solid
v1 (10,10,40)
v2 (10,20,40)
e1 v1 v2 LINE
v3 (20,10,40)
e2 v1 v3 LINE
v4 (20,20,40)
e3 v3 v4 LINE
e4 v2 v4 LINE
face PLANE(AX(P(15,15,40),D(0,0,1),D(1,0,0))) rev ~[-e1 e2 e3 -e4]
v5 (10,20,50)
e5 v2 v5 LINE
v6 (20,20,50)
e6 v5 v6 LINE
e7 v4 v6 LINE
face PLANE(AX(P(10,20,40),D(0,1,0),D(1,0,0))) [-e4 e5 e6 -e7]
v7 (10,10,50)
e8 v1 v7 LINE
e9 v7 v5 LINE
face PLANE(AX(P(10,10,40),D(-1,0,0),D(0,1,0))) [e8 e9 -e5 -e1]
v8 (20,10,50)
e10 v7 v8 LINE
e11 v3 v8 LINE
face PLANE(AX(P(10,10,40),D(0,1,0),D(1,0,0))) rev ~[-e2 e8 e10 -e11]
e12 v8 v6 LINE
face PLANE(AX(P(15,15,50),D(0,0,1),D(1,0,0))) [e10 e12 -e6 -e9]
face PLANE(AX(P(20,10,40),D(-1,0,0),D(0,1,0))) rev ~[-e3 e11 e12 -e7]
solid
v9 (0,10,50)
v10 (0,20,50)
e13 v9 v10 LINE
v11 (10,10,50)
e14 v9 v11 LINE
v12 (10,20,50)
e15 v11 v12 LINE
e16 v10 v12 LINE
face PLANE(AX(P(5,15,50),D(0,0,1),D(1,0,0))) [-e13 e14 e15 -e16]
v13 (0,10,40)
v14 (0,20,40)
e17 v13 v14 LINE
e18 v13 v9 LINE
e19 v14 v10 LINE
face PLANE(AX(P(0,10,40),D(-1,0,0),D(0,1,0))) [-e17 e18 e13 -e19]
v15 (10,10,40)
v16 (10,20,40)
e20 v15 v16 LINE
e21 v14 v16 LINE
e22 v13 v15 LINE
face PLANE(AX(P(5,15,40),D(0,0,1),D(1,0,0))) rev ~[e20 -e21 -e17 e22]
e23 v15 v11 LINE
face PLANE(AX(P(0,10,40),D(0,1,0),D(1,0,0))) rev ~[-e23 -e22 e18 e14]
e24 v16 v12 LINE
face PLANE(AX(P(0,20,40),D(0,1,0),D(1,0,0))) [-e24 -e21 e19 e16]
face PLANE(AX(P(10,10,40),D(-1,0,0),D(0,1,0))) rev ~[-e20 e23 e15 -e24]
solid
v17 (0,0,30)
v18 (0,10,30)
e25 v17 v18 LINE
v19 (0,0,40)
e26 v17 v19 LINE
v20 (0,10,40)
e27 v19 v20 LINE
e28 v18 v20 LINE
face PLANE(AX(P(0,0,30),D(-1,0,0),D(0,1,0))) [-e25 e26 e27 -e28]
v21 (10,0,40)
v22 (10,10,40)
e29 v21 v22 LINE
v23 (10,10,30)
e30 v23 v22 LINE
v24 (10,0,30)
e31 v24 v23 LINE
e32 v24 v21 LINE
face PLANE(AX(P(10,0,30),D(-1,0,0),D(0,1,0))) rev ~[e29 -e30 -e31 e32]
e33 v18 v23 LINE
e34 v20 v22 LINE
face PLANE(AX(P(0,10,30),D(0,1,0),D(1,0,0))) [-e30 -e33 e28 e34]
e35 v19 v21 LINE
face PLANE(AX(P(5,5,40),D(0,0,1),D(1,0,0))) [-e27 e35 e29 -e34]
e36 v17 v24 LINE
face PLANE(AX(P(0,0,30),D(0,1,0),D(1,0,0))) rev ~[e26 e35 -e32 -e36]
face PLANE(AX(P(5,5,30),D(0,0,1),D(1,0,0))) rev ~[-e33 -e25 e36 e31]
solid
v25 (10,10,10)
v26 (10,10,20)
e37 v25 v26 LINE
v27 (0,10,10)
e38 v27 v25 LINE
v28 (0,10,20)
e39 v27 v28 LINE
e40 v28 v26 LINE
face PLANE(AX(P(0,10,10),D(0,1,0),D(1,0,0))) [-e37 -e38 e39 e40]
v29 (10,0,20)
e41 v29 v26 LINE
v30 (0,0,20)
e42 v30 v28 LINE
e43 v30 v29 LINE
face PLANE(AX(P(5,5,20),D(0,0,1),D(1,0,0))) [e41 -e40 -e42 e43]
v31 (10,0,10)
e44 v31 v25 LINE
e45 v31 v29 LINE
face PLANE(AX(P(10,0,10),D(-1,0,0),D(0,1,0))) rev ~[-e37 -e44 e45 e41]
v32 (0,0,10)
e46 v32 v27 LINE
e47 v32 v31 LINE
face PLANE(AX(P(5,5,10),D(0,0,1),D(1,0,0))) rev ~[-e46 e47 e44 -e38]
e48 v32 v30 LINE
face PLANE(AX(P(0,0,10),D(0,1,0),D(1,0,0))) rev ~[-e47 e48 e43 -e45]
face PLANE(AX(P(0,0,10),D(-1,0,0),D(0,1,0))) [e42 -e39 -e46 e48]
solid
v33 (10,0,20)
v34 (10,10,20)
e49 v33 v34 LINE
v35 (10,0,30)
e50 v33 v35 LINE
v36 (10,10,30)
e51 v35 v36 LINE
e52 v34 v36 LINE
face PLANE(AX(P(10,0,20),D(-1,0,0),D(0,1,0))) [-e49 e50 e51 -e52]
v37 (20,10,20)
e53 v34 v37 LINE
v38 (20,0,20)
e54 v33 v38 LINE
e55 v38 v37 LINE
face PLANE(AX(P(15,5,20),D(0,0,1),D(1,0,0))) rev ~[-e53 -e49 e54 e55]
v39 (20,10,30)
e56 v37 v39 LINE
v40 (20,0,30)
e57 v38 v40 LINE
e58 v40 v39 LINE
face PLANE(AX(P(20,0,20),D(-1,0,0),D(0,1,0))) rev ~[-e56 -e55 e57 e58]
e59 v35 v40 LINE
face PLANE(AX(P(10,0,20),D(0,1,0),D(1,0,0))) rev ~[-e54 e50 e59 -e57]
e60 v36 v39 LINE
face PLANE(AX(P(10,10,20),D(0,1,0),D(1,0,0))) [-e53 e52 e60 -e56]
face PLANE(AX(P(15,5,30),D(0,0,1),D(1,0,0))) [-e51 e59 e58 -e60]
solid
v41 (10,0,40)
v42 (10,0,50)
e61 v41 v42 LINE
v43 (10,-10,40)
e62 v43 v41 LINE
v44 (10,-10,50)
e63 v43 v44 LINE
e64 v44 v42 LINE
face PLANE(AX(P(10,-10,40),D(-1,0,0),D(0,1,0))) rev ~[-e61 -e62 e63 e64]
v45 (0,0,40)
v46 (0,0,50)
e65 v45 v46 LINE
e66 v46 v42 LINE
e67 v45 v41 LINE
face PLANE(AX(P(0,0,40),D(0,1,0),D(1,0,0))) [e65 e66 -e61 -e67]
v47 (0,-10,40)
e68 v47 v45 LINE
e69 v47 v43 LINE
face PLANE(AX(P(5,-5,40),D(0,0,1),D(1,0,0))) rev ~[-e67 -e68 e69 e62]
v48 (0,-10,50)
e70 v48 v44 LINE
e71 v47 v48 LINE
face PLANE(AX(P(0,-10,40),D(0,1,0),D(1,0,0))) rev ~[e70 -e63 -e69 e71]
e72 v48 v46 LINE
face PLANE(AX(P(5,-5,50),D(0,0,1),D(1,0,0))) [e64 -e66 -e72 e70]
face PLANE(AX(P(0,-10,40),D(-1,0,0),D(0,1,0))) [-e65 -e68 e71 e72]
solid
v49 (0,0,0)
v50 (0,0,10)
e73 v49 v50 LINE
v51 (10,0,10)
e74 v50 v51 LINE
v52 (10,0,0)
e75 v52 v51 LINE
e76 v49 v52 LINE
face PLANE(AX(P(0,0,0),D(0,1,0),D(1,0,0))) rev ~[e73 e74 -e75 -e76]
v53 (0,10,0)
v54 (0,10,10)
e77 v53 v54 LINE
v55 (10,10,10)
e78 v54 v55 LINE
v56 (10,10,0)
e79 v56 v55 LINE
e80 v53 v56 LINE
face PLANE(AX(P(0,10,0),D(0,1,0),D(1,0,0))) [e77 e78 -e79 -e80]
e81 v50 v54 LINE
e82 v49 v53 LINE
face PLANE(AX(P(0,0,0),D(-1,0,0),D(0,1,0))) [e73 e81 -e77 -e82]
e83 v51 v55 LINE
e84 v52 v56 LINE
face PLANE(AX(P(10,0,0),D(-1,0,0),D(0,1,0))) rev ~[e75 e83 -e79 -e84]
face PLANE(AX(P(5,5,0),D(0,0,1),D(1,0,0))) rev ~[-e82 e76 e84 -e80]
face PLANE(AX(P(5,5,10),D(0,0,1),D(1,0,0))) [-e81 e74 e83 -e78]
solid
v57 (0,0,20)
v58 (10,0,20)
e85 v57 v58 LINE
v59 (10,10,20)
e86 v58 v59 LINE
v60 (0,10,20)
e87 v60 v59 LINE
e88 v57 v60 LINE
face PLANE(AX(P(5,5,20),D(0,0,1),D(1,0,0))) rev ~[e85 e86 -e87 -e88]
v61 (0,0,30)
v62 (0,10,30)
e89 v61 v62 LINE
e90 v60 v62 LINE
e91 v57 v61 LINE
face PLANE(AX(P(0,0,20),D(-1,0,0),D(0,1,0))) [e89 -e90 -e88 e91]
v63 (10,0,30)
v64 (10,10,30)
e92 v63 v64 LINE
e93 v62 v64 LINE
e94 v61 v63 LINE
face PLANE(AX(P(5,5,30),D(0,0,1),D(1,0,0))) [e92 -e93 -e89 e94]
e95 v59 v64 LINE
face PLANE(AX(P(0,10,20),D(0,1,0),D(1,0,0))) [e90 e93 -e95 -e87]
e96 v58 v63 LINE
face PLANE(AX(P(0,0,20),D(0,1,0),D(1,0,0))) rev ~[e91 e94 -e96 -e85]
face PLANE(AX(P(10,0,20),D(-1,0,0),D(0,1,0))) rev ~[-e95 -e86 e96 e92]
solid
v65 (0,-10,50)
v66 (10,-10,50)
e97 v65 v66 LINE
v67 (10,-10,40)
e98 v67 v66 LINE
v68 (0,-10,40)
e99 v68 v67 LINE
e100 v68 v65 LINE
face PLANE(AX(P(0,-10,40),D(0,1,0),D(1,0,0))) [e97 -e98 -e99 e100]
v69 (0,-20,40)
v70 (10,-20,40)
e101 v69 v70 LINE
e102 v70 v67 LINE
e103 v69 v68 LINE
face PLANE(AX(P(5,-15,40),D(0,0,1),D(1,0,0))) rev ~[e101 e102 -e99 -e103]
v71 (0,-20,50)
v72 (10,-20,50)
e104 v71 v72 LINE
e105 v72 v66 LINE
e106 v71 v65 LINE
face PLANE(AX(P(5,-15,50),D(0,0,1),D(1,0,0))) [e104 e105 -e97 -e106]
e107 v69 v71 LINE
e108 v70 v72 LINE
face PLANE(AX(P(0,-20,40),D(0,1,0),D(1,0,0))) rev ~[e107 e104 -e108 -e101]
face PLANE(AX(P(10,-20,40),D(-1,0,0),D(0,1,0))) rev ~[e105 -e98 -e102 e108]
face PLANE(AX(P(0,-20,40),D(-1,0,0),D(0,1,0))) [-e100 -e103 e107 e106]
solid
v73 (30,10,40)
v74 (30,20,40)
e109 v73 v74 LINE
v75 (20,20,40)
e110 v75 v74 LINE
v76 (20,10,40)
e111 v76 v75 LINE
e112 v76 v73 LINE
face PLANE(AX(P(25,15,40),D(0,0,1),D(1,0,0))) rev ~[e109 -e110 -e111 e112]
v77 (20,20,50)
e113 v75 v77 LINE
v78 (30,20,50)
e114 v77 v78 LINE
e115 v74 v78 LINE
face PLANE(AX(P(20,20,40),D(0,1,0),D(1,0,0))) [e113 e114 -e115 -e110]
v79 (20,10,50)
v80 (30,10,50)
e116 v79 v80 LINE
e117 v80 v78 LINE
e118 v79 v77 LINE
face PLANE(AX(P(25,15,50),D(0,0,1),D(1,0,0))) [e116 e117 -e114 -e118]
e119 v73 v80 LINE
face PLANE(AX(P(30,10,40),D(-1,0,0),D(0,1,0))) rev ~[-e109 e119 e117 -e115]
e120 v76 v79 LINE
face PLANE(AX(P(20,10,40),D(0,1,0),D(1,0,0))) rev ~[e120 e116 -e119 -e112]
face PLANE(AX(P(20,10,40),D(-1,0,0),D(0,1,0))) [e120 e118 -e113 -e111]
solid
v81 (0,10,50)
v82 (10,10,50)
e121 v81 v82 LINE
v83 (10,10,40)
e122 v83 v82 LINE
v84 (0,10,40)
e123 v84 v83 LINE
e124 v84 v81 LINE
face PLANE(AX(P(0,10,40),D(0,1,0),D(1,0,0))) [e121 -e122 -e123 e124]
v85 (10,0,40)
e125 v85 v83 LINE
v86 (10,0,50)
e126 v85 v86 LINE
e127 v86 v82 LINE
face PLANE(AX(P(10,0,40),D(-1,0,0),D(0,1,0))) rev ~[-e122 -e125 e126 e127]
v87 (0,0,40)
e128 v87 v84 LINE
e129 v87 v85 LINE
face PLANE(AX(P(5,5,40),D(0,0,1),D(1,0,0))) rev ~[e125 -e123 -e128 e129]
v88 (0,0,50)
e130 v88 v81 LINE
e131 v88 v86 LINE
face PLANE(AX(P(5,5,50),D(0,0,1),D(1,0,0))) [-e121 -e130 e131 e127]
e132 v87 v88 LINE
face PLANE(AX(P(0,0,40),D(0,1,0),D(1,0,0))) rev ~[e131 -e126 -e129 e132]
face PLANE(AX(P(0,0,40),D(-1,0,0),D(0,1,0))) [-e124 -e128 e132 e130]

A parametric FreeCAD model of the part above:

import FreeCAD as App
import Part
import Sketcher

V = App.Vector
Q = App.Units.Quantity

doc = App.newDocument("Part")
body = doc.addObject("PartDesign::Body", "Body")

# Sketch on XY plane
sketch1 = body.newObject("Sketcher::SketchObject", "Sketch")
sketch1.AttachmentSupport = (doc.getObject("XY_Plane"), [""])
sketch1.MapMode = "FlatFace"
sketch1.addGeometry([
    Part.LineSegment(V(0, 10, 0), V(0, 0, 0)),
    Part.LineSegment(V(0, 0, 0), V(10, 0, 0)),
    Part.LineSegment(V(10, 0, 0), V(10, 10, 0)),
    Part.LineSegment(V(10, 10, 0), V(0, 10, 0)),
], False)
sketch1.addConstraint([
    Sketcher.Constraint("Coincident", 0, 2, 1, 1),
    Sketcher.Constraint("Coincident", 1, 2, 2, 1),
    Sketcher.Constraint("Coincident", 2, 2, 3, 1),
    Sketcher.Constraint("Coincident", 3, 2, 0, 1),
    Sketcher.Constraint("Vertical", 0),
    Sketcher.Constraint("Horizontal", 1),
    Sketcher.Constraint("Vertical", 2),
    Sketcher.Constraint("Horizontal", 3),
    Sketcher.Constraint("Coincident", 0, 2, -1, 1),
    Sketcher.Constraint("Equal", 3, 0),
    Sketcher.Constraint("DistanceX", 1, 1, 1, 2, Q("10 mm")),
])
pad1 = body.newObject("PartDesign::Pad", "Pad")
pad1.Profile = sketch1
pad1.Length = 10
body2 = doc.addObject("PartDesign::Body", "Body001")

# Sketch on XY plane
sketch2 = body2.newObject("Sketcher::SketchObject", "Sketch001")
sketch2.AttachmentSupport = (doc.getObject("XY_Plane001"), [""])
sketch2.MapMode = "FlatFace"
sketch2.AttachmentOffset = App.Placement(V(0, 0, 10), App.Rotation())
sketch2.addGeometry([
    Part.LineSegment(V(0, 10, 0), V(0, 0, 0)),
    Part.LineSegment(V(0, 0, 0), V(10, 0, 0)),
    Part.LineSegment(V(10, 0, 0), V(10, 10, 0)),
    Part.LineSegment(V(10, 10, 0), V(0, 10, 0)),
], False)
sketch2.addConstraint([
    Sketcher.Constraint("Coincident", 0, 2, 1, 1),
    Sketcher.Constraint("Coincident", 1, 2, 2, 1),
    Sketcher.Constraint("Coincident", 2, 2, 3, 1),
    Sketcher.Constraint("Coincident", 3, 2, 0, 1),
    Sketcher.Constraint("Vertical", 0),
    Sketcher.Constraint("Horizontal", 1),
    Sketcher.Constraint("Vertical", 2),
    Sketcher.Constraint("Horizontal", 3),
    Sketcher.Constraint("Coincident", 0, 2, -1, 1),
    Sketcher.Constraint("Equal", 3, 0),
    Sketcher.Constraint("DistanceX", 1, 1, 1, 2, Q("10 mm")),
])
pad2 = body2.newObject("PartDesign::Pad", "Pad001")
pad2.Profile = sketch2
pad2.Length = 10
body3 = doc.addObject("PartDesign::Body", "Body002")

# Sketch on XY plane
sketch3 = body3.newObject("Sketcher::SketchObject", "Sketch002")
sketch3.AttachmentSupport = (doc.getObject("XY_Plane002"), [""])
sketch3.MapMode = "FlatFace"
sketch3.AttachmentOffset = App.Placement(V(0, 0, 20), App.Rotation())
sketch3.addGeometry([
    Part.LineSegment(V(0, 10, 0), V(0, 0, 0)),
    Part.LineSegment(V(0, 0, 0), V(10, 0, 0)),
    Part.LineSegment(V(10, 0, 0), V(10, 10, 0)),
    Part.LineSegment(V(10, 10, 0), V(0, 10, 0)),
], False)
sketch3.addConstraint([
    Sketcher.Constraint("Coincident", 0, 2, 1, 1),
    Sketcher.Constraint("Coincident", 1, 2, 2, 1),
    Sketcher.Constraint("Coincident", 2, 2, 3, 1),
    Sketcher.Constraint("Coincident", 3, 2, 0, 1),
    Sketcher.Constraint("Vertical", 0),
    Sketcher.Constraint("Horizontal", 1),
    Sketcher.Constraint("Vertical", 2),
    Sketcher.Constraint("Horizontal", 3),
    Sketcher.Constraint("Coincident", 0, 2, -1, 1),
    Sketcher.Constraint("Equal", 3, 0),
    Sketcher.Constraint("DistanceX", 1, 1, 1, 2, Q("10 mm")),
])
pad3 = body3.newObject("PartDesign::Pad", "Pad002")
pad3.Profile = sketch3
pad3.Length = 10
body4 = doc.addObject("PartDesign::Body", "Body003")

# Sketch on XY plane
sketch4 = body4.newObject("Sketcher::SketchObject", "Sketch003")
sketch4.AttachmentSupport = (doc.getObject("XY_Plane003"), [""])
sketch4.MapMode = "FlatFace"
sketch4.AttachmentOffset = App.Placement(V(0, 0, 30), App.Rotation())
sketch4.addGeometry([
    Part.LineSegment(V(0, 10, 0), V(0, 0, 0)),
    Part.LineSegment(V(0, 0, 0), V(10, 0, 0)),
    Part.LineSegment(V(10, 0, 0), V(10, 10, 0)),
    Part.LineSegment(V(10, 10, 0), V(0, 10, 0)),
], False)
sketch4.addConstraint([
    Sketcher.Constraint("Coincident", 0, 2, 1, 1),
    Sketcher.Constraint("Coincident", 1, 2, 2, 1),
    Sketcher.Constraint("Coincident", 2, 2, 3, 1),
    Sketcher.Constraint("Coincident", 3, 2, 0, 1),
    Sketcher.Constraint("Vertical", 0),
    Sketcher.Constraint("Horizontal", 1),
    Sketcher.Constraint("Vertical", 2),
    Sketcher.Constraint("Horizontal", 3),
    Sketcher.Constraint("Coincident", 0, 2, -1, 1),
    Sketcher.Constraint("Equal", 3, 0),
    Sketcher.Constraint("DistanceX", 1, 1, 1, 2, Q("10 mm")),
])
pad4 = body4.newObject("PartDesign::Pad", "Pad003")
pad4.Profile = sketch4
pad4.Length = 10
body5 = doc.addObject("PartDesign::Body", "Body004")

# Sketch on XY plane
sketch5 = body5.newObject("Sketcher::SketchObject", "Sketch004")
sketch5.AttachmentSupport = (doc.getObject("XY_Plane004"), [""])
sketch5.MapMode = "FlatFace"
sketch5.AttachmentOffset = App.Placement(V(0, 0, 40), App.Rotation())
sketch5.addGeometry([
    Part.LineSegment(V(0, 10, 0), V(0, 0, 0)),
    Part.LineSegment(V(0, 0, 0), V(10, 0, 0)),
    Part.LineSegment(V(10, 0, 0), V(10, 10, 0)),
    Part.LineSegment(V(10, 10, 0), V(0, 10, 0)),
], False)
sketch5.addConstraint([
    Sketcher.Constraint("Coincident", 0, 2, 1, 1),
    Sketcher.Constraint("Coincident", 1, 2, 2, 1),
    Sketcher.Constraint("Coincident", 2, 2, 3, 1),
    Sketcher.Constraint("Coincident", 3, 2, 0, 1),
    Sketcher.Constraint("Vertical", 0),
    Sketcher.Constraint("Horizontal", 1),
    Sketcher.Constraint("Vertical", 2),
    Sketcher.Constraint("Horizontal", 3),
    Sketcher.Constraint("Coincident", 0, 2, -1, 1),
    Sketcher.Constraint("Equal", 3, 0),
    Sketcher.Constraint("DistanceX", 1, 1, 1, 2, Q("10 mm")),
])
pad5 = body5.newObject("PartDesign::Pad", "Pad004")
pad5.Profile = sketch5
pad5.Length = 10
body6 = doc.addObject("PartDesign::Body", "Body005")

# Sketch on XY plane
sketch6 = body6.newObject("Sketcher::SketchObject", "Sketch005")
sketch6.AttachmentSupport = (doc.getObject("XY_Plane005"), [""])
sketch6.MapMode = "FlatFace"
sketch6.AttachmentOffset = App.Placement(V(0, 0, 20), App.Rotation())
sketch6.addGeometry([
    Part.LineSegment(V(10, 10, 0), V(10, 0, 0)),
    Part.LineSegment(V(10, 0, 0), V(20, 0, 0)),
    Part.LineSegment(V(20, 0, 0), V(20, 10, 0)),
    Part.LineSegment(V(20, 10, 0), V(10, 10, 0)),
], False)
sketch6.addConstraint([
    Sketcher.Constraint("Coincident", 0, 2, 1, 1),
    Sketcher.Constraint("Coincident", 1, 2, 2, 1),
    Sketcher.Constraint("Coincident", 2, 2, 3, 1),
    Sketcher.Constraint("Coincident", 3, 2, 0, 1),
    Sketcher.Constraint("Vertical", 0),
    Sketcher.Constraint("Horizontal", 1),
    Sketcher.Constraint("Vertical", 2),
    Sketcher.Constraint("Horizontal", 3),
    Sketcher.Constraint("PointOnObject", 0, 2, -1),
    Sketcher.Constraint("Equal", 3, 0),
    Sketcher.Constraint("DistanceX", 1, 1, 1, 2, Q("10 mm")),
    Sketcher.Constraint("DistanceX", -1, 1, 0, 2, Q("10 mm")),
])
pad6 = body6.newObject("PartDesign::Pad", "Pad005")
pad6.Profile = sketch6
pad6.Length = 10
body7 = doc.addObject("PartDesign::Body", "Body006")

# Sketch on XY plane
sketch7 = body7.newObject("Sketcher::SketchObject", "Sketch006")
sketch7.AttachmentSupport = (doc.getObject("XY_Plane006"), [""])
sketch7.MapMode = "FlatFace"
sketch7.AttachmentOffset = App.Placement(V(0, 0, 40), App.Rotation())
sketch7.addGeometry([
    Part.LineSegment(V(0, 0, 0), V(0, -10, 0)),
    Part.LineSegment(V(0, -10, 0), V(10, -10, 0)),
    Part.LineSegment(V(10, -10, 0), V(10, 0, 0)),
    Part.LineSegment(V(10, 0, 0), V(0, 0, 0)),
], False)
sketch7.addConstraint([
    Sketcher.Constraint("Coincident", 0, 2, 1, 1),
    Sketcher.Constraint("Coincident", 1, 2, 2, 1),
    Sketcher.Constraint("Coincident", 2, 2, 3, 1),
    Sketcher.Constraint("Coincident", 3, 2, 0, 1),
    Sketcher.Constraint("Vertical", 0),
    Sketcher.Constraint("Horizontal", 1),
    Sketcher.Constraint("Vertical", 2),
    Sketcher.Constraint("Horizontal", 3),
    Sketcher.Constraint("Coincident", 3, 2, -1, 1),
    Sketcher.Constraint("Equal", 3, 0),
    Sketcher.Constraint("DistanceX", 1, 1, 1, 2, Q("10 mm")),
])
pad7 = body7.newObject("PartDesign::Pad", "Pad006")
pad7.Profile = sketch7
pad7.Length = 10
body8 = doc.addObject("PartDesign::Body", "Body007")

# Sketch on XY plane
sketch8 = body8.newObject("Sketcher::SketchObject", "Sketch007")
sketch8.AttachmentSupport = (doc.getObject("XY_Plane007"), [""])
sketch8.MapMode = "FlatFace"
sketch8.AttachmentOffset = App.Placement(V(0, 0, 40), App.Rotation())
sketch8.addGeometry([
    Part.LineSegment(V(0, -10, 0), V(0, -20, 0)),
    Part.LineSegment(V(0, -20, 0), V(10, -20, 0)),
    Part.LineSegment(V(10, -20, 0), V(10, -10, 0)),
    Part.LineSegment(V(10, -10, 0), V(0, -10, 0)),
], False)
sketch8.addConstraint([
    Sketcher.Constraint("Coincident", 0, 2, 1, 1),
    Sketcher.Constraint("Coincident", 1, 2, 2, 1),
    Sketcher.Constraint("Coincident", 2, 2, 3, 1),
    Sketcher.Constraint("Coincident", 3, 2, 0, 1),
    Sketcher.Constraint("Vertical", 0),
    Sketcher.Constraint("Horizontal", 1),
    Sketcher.Constraint("Vertical", 2),
    Sketcher.Constraint("Horizontal", 3),
    Sketcher.Constraint("PointOnObject", 0, 2, -2),
    Sketcher.Constraint("Equal", 3, 0),
    Sketcher.Constraint("DistanceX", 1, 1, 1, 2, Q("10 mm")),
    Sketcher.Constraint("DistanceY", 0, 2, -1, 1, Q("20 mm")),
])
pad8 = body8.newObject("PartDesign::Pad", "Pad007")
pad8.Profile = sketch8
pad8.Length = 10
body9 = doc.addObject("PartDesign::Body", "Body008")

# Sketch on XY plane
sketch9 = body9.newObject("Sketcher::SketchObject", "Sketch008")
sketch9.AttachmentSupport = (doc.getObject("XY_Plane008"), [""])
sketch9.MapMode = "FlatFace"
sketch9.AttachmentOffset = App.Placement(V(0, 0, 40), App.Rotation())
sketch9.addGeometry([
    Part.LineSegment(V(0, 20, 0), V(0, 10, 0)),
    Part.LineSegment(V(0, 10, 0), V(10, 10, 0)),
    Part.LineSegment(V(10, 10, 0), V(10, 20, 0)),
    Part.LineSegment(V(10, 20, 0), V(0, 20, 0)),
], False)
sketch9.addConstraint([
    Sketcher.Constraint("Coincident", 0, 2, 1, 1),
    Sketcher.Constraint("Coincident", 1, 2, 2, 1),
    Sketcher.Constraint("Coincident", 2, 2, 3, 1),
    Sketcher.Constraint("Coincident", 3, 2, 0, 1),
    Sketcher.Constraint("Vertical", 0),
    Sketcher.Constraint("Horizontal", 1),
    Sketcher.Constraint("Vertical", 2),
    Sketcher.Constraint("Horizontal", 3),
    Sketcher.Constraint("PointOnObject", 0, 2, -2),
    Sketcher.Constraint("Equal", 3, 0),
    Sketcher.Constraint("DistanceX", 1, 1, 1, 2, Q("10 mm")),
    Sketcher.Constraint("DistanceY", -1, 1, 0, 2, Q("10 mm")),
])
pad9 = body9.newObject("PartDesign::Pad", "Pad008")
pad9.Profile = sketch9
pad9.Length = 10
body10 = doc.addObject("PartDesign::Body", "Body009")

# Sketch on XY plane
sketch10 = body10.newObject("Sketcher::SketchObject", "Sketch009")
sketch10.AttachmentSupport = (doc.getObject("XY_Plane009"), [""])
sketch10.MapMode = "FlatFace"
sketch10.AttachmentOffset = App.Placement(V(0, 0, 40), App.Rotation())
sketch10.addGeometry([
    Part.LineSegment(V(10, 20, 0), V(10, 10, 0)),
    Part.LineSegment(V(10, 10, 0), V(20, 10, 0)),
    Part.LineSegment(V(20, 10, 0), V(20, 20, 0)),
    Part.LineSegment(V(20, 20, 0), V(10, 20, 0)),
], False)
sketch10.addConstraint([
    Sketcher.Constraint("Coincident", 0, 2, 1, 1),
    Sketcher.Constraint("Coincident", 1, 2, 2, 1),
    Sketcher.Constraint("Coincident", 2, 2, 3, 1),
    Sketcher.Constraint("Coincident", 3, 2, 0, 1),
    Sketcher.Constraint("Vertical", 0),
    Sketcher.Constraint("Horizontal", 1),
    Sketcher.Constraint("Vertical", 2),
    Sketcher.Constraint("Horizontal", 3),
    Sketcher.Constraint("Equal", 3, 0),
    Sketcher.Constraint("DistanceX", 1, 1, 1, 2, Q("10 mm")),
    Sketcher.Constraint("DistanceX", -1, 1, 0, 2, Q("10 mm")),
    Sketcher.Constraint("DistanceY", -1, 1, 0, 2, Q("10 mm")),
])
pad10 = body10.newObject("PartDesign::Pad", "Pad009")
pad10.Profile = sketch10
pad10.Length = 10
body11 = doc.addObject("PartDesign::Body", "Body010")

# Sketch on XY plane
sketch11 = body11.newObject("Sketcher::SketchObject", "Sketch010")
sketch11.AttachmentSupport = (doc.getObject("XY_Plane010"), [""])
sketch11.MapMode = "FlatFace"
sketch11.AttachmentOffset = App.Placement(V(0, 0, 40), App.Rotation())
sketch11.addGeometry([
    Part.LineSegment(V(20, 20, 0), V(20, 10, 0)),
    Part.LineSegment(V(20, 10, 0), V(30, 10, 0)),
    Part.LineSegment(V(30, 10, 0), V(30, 20, 0)),
    Part.LineSegment(V(30, 20, 0), V(20, 20, 0)),
], False)
sketch11.addConstraint([
    Sketcher.Constraint("Coincident", 0, 2, 1, 1),
    Sketcher.Constraint("Coincident", 1, 2, 2, 1),
    Sketcher.Constraint("Coincident", 2, 2, 3, 1),
    Sketcher.Constraint("Coincident", 3, 2, 0, 1),
    Sketcher.Constraint("Vertical", 0),
    Sketcher.Constraint("Horizontal", 1),
    Sketcher.Constraint("Vertical", 2),
    Sketcher.Constraint("Horizontal", 3),
    Sketcher.Constraint("Equal", 3, 0),
    Sketcher.Constraint("DistanceX", 1, 1, 1, 2, Q("10 mm")),
    Sketcher.Constraint("DistanceX", -1, 1, 0, 2, Q("20 mm")),
    Sketcher.Constraint("DistanceY", -1, 1, 0, 2, Q("10 mm")),
])
pad11 = body11.newObject("PartDesign::Pad", "Pad010")
pad11.Profile = sketch11
pad11.Length = 10

doc.recompute()
